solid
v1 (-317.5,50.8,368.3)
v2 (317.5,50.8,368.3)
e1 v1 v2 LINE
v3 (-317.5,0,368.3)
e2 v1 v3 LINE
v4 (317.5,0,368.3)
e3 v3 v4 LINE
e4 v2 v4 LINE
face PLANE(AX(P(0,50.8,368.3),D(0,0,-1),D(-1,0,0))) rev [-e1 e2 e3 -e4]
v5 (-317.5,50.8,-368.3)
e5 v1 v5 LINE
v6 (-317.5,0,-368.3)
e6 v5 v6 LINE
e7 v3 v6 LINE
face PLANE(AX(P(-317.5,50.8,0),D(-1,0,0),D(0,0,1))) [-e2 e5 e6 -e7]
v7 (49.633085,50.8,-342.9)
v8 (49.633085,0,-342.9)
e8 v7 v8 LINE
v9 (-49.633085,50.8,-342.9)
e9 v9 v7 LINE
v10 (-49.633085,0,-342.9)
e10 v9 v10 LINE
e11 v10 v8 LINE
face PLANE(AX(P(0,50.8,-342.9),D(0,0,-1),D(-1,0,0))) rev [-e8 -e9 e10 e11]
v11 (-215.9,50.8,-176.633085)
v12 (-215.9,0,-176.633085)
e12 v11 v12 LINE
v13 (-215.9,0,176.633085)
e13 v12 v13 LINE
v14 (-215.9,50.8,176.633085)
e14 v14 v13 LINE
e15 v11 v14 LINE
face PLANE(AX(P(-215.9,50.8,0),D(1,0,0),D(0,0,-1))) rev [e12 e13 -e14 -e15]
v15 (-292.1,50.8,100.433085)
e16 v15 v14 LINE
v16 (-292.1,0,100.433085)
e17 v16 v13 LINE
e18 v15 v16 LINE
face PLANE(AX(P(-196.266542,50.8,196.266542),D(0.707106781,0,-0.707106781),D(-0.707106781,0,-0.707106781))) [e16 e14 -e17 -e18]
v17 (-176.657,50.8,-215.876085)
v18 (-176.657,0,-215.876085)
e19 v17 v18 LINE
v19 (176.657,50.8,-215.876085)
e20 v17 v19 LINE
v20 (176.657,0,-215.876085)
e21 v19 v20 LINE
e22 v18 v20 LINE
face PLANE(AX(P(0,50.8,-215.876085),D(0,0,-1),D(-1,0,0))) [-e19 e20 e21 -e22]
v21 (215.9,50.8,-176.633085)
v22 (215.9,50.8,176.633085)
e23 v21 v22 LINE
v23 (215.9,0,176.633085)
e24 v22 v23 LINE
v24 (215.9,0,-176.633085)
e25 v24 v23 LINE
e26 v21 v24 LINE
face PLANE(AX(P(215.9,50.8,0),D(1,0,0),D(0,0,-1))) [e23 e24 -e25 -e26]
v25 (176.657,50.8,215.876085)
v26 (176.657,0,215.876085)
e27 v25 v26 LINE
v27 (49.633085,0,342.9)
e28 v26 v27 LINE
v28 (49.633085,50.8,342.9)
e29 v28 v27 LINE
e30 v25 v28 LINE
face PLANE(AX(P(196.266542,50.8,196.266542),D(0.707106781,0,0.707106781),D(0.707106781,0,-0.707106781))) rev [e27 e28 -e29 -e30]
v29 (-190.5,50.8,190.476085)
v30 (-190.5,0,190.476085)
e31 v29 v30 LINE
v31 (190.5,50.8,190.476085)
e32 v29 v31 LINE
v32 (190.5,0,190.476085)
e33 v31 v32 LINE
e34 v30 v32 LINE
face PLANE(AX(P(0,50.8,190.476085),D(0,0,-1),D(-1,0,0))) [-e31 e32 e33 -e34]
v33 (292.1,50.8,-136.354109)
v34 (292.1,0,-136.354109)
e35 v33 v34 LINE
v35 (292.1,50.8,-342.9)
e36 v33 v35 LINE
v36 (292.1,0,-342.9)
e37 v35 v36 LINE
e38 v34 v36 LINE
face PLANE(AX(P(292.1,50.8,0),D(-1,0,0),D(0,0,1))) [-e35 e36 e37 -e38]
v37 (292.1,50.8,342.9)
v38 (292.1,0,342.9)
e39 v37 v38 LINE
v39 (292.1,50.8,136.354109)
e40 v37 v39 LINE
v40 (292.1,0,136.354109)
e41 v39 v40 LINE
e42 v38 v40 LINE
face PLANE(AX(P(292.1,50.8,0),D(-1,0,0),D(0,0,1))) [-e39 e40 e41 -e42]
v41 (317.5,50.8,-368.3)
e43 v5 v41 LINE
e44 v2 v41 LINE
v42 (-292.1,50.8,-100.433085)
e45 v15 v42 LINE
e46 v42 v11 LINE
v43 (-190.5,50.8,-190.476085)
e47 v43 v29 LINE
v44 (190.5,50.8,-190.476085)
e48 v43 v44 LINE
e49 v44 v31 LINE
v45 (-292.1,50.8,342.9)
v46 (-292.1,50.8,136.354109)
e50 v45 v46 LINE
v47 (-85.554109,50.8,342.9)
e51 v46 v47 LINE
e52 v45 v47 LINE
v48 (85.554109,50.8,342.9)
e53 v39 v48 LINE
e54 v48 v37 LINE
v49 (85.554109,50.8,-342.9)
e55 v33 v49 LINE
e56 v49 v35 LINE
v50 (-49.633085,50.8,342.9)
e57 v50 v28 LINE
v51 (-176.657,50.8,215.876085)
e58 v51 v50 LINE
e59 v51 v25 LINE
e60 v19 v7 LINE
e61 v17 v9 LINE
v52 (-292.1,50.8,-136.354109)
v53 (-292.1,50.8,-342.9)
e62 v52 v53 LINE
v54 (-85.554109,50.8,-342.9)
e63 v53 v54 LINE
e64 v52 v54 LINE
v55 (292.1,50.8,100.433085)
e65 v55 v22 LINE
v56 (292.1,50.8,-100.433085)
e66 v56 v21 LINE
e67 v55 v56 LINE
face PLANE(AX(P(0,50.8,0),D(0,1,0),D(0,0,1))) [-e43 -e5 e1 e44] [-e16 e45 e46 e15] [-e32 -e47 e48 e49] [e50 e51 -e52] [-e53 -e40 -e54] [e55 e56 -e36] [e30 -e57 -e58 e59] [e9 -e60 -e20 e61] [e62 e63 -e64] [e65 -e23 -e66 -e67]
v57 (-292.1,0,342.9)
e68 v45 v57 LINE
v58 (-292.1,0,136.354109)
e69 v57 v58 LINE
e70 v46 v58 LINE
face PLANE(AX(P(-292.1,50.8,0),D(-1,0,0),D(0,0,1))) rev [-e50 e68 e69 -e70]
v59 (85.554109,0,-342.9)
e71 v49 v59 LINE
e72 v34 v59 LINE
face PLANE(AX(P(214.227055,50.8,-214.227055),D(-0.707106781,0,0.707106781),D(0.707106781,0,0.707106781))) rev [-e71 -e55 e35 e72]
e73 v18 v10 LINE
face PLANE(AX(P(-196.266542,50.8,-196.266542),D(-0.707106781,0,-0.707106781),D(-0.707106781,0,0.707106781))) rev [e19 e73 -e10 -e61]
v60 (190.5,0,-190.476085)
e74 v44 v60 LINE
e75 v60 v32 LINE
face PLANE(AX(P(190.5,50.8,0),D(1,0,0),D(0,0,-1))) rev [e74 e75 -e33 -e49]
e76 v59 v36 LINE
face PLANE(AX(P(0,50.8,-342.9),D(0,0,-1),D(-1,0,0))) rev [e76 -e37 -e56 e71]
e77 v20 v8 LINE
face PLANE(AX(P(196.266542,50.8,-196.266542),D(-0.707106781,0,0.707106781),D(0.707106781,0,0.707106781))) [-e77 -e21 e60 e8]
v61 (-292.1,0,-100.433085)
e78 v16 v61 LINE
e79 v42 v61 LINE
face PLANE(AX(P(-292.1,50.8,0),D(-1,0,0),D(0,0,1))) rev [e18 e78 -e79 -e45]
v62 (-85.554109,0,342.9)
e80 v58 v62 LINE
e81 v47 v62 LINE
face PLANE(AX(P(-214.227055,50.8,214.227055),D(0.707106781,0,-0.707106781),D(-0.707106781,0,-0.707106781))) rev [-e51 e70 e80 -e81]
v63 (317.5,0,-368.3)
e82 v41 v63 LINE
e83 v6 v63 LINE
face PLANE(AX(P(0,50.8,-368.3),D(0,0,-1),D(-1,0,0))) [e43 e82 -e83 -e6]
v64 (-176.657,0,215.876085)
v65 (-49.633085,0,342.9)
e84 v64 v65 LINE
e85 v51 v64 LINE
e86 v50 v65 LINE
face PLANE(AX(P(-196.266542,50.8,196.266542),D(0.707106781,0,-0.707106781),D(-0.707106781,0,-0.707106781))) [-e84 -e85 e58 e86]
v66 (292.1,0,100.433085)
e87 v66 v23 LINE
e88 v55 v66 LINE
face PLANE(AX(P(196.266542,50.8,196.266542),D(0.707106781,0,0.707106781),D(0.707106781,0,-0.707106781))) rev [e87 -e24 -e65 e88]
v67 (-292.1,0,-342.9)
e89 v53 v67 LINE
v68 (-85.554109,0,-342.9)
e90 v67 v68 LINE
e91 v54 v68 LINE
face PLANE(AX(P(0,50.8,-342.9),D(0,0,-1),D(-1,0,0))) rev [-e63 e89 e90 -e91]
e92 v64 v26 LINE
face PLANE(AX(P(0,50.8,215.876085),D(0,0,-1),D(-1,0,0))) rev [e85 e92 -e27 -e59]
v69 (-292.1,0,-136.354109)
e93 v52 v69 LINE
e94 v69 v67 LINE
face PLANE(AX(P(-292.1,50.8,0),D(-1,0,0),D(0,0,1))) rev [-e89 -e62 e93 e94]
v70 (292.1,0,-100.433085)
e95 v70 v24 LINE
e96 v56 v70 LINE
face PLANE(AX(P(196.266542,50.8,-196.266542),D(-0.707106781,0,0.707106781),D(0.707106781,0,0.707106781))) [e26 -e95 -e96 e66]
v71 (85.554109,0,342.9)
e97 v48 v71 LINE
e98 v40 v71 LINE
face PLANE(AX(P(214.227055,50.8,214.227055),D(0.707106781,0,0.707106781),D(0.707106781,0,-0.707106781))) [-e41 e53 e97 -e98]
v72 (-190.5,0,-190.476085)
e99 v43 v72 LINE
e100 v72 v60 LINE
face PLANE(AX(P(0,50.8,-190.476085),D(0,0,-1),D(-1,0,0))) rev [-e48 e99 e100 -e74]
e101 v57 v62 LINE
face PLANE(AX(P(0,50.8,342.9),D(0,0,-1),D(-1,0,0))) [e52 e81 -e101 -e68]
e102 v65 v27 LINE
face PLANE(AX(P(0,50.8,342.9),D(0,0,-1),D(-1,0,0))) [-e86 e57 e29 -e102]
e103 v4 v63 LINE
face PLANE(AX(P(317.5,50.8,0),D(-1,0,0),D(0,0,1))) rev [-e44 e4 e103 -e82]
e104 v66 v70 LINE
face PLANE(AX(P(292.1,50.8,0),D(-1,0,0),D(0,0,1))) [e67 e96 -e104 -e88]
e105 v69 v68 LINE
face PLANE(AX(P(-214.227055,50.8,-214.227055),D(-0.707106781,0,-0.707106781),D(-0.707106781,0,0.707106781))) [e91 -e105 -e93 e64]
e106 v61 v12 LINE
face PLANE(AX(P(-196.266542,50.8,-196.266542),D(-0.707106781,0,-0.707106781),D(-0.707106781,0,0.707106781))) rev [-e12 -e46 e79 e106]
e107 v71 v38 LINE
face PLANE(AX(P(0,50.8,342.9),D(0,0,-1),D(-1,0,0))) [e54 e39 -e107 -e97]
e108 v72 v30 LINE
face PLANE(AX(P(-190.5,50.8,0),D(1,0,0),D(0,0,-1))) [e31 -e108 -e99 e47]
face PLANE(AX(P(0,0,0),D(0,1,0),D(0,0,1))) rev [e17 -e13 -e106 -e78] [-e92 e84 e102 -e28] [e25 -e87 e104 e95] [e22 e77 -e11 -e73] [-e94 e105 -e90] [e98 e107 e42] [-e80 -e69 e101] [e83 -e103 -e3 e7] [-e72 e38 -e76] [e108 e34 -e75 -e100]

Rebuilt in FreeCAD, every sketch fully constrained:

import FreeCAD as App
import Part
import Sketcher
Q = App.Units.Quantity

doc = App.newDocument("Part")
body = doc.addObject("PartDesign::Body", "Body")

# Sketch on XZ plane
sketch1 = doc.addObject("Sketcher::SketchObject", "Sketch")
body.addObject(sketch1)
sketch1.AttachmentSupport = (doc.XZ_Plane, [""])
sketch1.MapMode = "FlatFace"
sketch1.addGeometry(Part.LineSegment(App.Vector(-318, -368, 0), App.Vector(-318, 368, 0)), False)
sketch1.addGeometry(Part.LineSegment(App.Vector(-318, 368, 0), App.Vector(318, 368, 0)), False)
sketch1.addGeometry(Part.LineSegment(App.Vector(318, 368, 0), App.Vector(318, -368, 0)), False)
sketch1.addGeometry(Part.LineSegment(App.Vector(318, -368, 0), App.Vector(-318, -368, 0)), False)
sketch1.addGeometry(Part.LineSegment(App.Vector(-86, 343, 0), App.Vector(-292, 343, 0)), False)
sketch1.addGeometry(Part.LineSegment(App.Vector(-292, 343, 0), App.Vector(-292, 136, 0)), False)
sketch1.addGeometry(Part.LineSegment(App.Vector(-292, 136, 0), App.Vector(-86, 343, 0)), False)
sketch1.addGeometry(Part.LineSegment(App.Vector(50, 343, 0), App.Vector(-50, 343, 0)), False)
sketch1.addGeometry(Part.LineSegment(App.Vector(-50, 343, 0), App.Vector(-177, 216, 0)), False)
sketch1.addGeometry(Part.LineSegment(App.Vector(-177, 216, 0), App.Vector(177, 216, 0)), False)
sketch1.addGeometry(Part.LineSegment(App.Vector(177, 216, 0), App.Vector(50, 343, 0)), False)
sketch1.addGeometry(Part.LineSegment(App.Vector(292, 343, 0), App.Vector(86, 343, 0)), False)
sketch1.addGeometry(Part.LineSegment(App.Vector(86, 343, 0), App.Vector(292, 136, 0)), False)
sketch1.addGeometry(Part.LineSegment(App.Vector(292, 136, 0), App.Vector(292, 343, 0)), False)
sketch1.addGeometry(Part.LineSegment(App.Vector(292, -100, 0), App.Vector(292, 100, 0)), False)
sketch1.addGeometry(Part.LineSegment(App.Vector(292, 100, 0), App.Vector(216, 177, 0)), False)
sketch1.addGeometry(Part.LineSegment(App.Vector(216, 177, 0), App.Vector(216, -177, 0)), False)
sketch1.addGeometry(Part.LineSegment(App.Vector(216, -177, 0), App.Vector(292, -100, 0)), False)
sketch1.addGeometry(Part.LineSegment(App.Vector(292, -343, 0), App.Vector(292, -136, 0)), False)
sketch1.addGeometry(Part.LineSegment(App.Vector(292, -136, 0), App.Vector(86, -343, 0)), False)
sketch1.addGeometry(Part.LineSegment(App.Vector(86, -343, 0), App.Vector(292, -343, 0)), False)
sketch1.addGeometry(Part.LineSegment(App.Vector(-292, -343, 0), App.Vector(-86, -343, 0)), False)
sketch1.addGeometry(Part.LineSegment(App.Vector(-86, -343, 0), App.Vector(-292, -136, 0)), False)
sketch1.addGeometry(Part.LineSegment(App.Vector(-292, -136, 0), App.Vector(-292, -343, 0)), False)
sketch1.addGeometry(Part.LineSegment(App.Vector(-50, -343, 0), App.Vector(50, -343, 0)), False)
sketch1.addGeometry(Part.LineSegment(App.Vector(50, -343, 0), App.Vector(177, -216, 0)), False)
sketch1.addGeometry(Part.LineSegment(App.Vector(177, -216, 0), App.Vector(-177, -216, 0)), False)
sketch1.addGeometry(Part.LineSegment(App.Vector(-177, -216, 0), App.Vector(-50, -343, 0)), False)
sketch1.addGeometry(Part.LineSegment(App.Vector(-292, 100, 0), App.Vector(-292, -100, 0)), False)
sketch1.addGeometry(Part.LineSegment(App.Vector(-292, -100, 0), App.Vector(-216, -177, 0)), False)
sketch1.addGeometry(Part.LineSegment(App.Vector(-216, -177, 0), App.Vector(-216, 177, 0)), False)
sketch1.addGeometry(Part.LineSegment(App.Vector(-216, 177, 0), App.Vector(-292, 100, 0)), False)
sketch1.addGeometry(Part.LineSegment(App.Vector(-190, 190, 0), App.Vector(-190, -190, 0)), False)
sketch1.addGeometry(Part.LineSegment(App.Vector(-190, -190, 0), App.Vector(190, -190, 0)), False)
sketch1.addGeometry(Part.LineSegment(App.Vector(190, -190, 0), App.Vector(190, 190, 0)), False)
sketch1.addGeometry(Part.LineSegment(App.Vector(190, 190, 0), App.Vector(-190, 190, 0)), False)
sketch1.addConstraint(Sketcher.Constraint("Coincident", 0, 2, 1, 1))
sketch1.addConstraint(Sketcher.Constraint("Coincident", 1, 2, 2, 1))
sketch1.addConstraint(Sketcher.Constraint("Coincident", 2, 2, 3, 1))
sketch1.addConstraint(Sketcher.Constraint("Coincident", 3, 2, 0, 1))
sketch1.addConstraint(Sketcher.Constraint("Coincident", 4, 2, 5, 1))
sketch1.addConstraint(Sketcher.Constraint("Coincident", 5, 2, 6, 1))
sketch1.addConstraint(Sketcher.Constraint("Coincident", 6, 2, 4, 1))
sketch1.addConstraint(Sketcher.Constraint("Coincident", 7, 2, 8, 1))
sketch1.addConstraint(Sketcher.Constraint("Coincident", 8, 2, 9, 1))
sketch1.addConstraint(Sketcher.Constraint("Coincident", 9, 2, 10, 1))
sketch1.addConstraint(Sketcher.Constraint("Coincident", 10, 2, 7, 1))
sketch1.addConstraint(Sketcher.Constraint("Coincident", 11, 2, 12, 1))
sketch1.addConstraint(Sketcher.Constraint("Coincident", 12, 2, 13, 1))
sketch1.addConstraint(Sketcher.Constraint("Coincident", 13, 2, 11, 1))
sketch1.addConstraint(Sketcher.Constraint("Coincident", 14, 2, 15, 1))
sketch1.addConstraint(Sketcher.Constraint("Coincident", 15, 2, 16, 1))
sketch1.addConstraint(Sketcher.Constraint("Coincident", 16, 2, 17, 1))
sketch1.addConstraint(Sketcher.Constraint("Coincident", 17, 2, 14, 1))
sketch1.addConstraint(Sketcher.Constraint("Coincident", 18, 2, 19, 1))
sketch1.addConstraint(Sketcher.Constraint("Coincident", 19, 2, 20, 1))
sketch1.addConstraint(Sketcher.Constraint("Coincident", 20, 2, 18, 1))
sketch1.addConstraint(Sketcher.Constraint("Coincident", 21, 2, 22, 1))
sketch1.addConstraint(Sketcher.Constraint("Coincident", 22, 2, 23, 1))
sketch1.addConstraint(Sketcher.Constraint("Coincident", 23, 2, 21, 1))
sketch1.addConstraint(Sketcher.Constraint("Coincident", 24, 2, 25, 1))
sketch1.addConstraint(Sketcher.Constraint("Coincident", 25, 2, 26, 1))
sketch1.addConstraint(Sketcher.Constraint("Coincident", 26, 2, 27, 1))
sketch1.addConstraint(Sketcher.Constraint("Coincident", 27, 2, 24, 1))
sketch1.addConstraint(Sketcher.Constraint("Coincident", 28, 2, 29, 1))
sketch1.addConstraint(Sketcher.Constraint("Coincident", 29, 2, 30, 1))
sketch1.addConstraint(Sketcher.Constraint("Coincident", 30, 2, 31, 1))
sketch1.addConstraint(Sketcher.Constraint("Coincident", 31, 2, 28, 1))
sketch1.addConstraint(Sketcher.Constraint("Coincident", 32, 2, 33, 1))
sketch1.addConstraint(Sketcher.Constraint("Coincident", 33, 2, 34, 1))
sketch1.addConstraint(Sketcher.Constraint("Coincident", 34, 2, 35, 1))
sketch1.addConstraint(Sketcher.Constraint("Coincident", 35, 2, 32, 1))
sketch1.addConstraint(Sketcher.Constraint("Vertical", 0))
sketch1.addConstraint(Sketcher.Constraint("Horizontal", 1))
sketch1.addConstraint(Sketcher.Constraint("Vertical", 2))
sketch1.addConstraint(Sketcher.Constraint("Horizontal", 3))
sketch1.addConstraint(Sketcher.Constraint("Horizontal", 4))
sketch1.addConstraint(Sketcher.Constraint("Vertical", 5))
sketch1.addConstraint(Sketcher.Constraint("Horizontal", 7))
sketch1.addConstraint(Sketcher.Constraint("Horizontal", 9))
sketch1.addConstraint(Sketcher.Constraint("Horizontal", 11))
sketch1.addConstraint(Sketcher.Constraint("Vertical", 13))
sketch1.addConstraint(Sketcher.Constraint("Vertical", 14))
sketch1.addConstraint(Sketcher.Constraint("Vertical", 16))
sketch1.addConstraint(Sketcher.Constraint("Vertical", 18))
sketch1.addConstraint(Sketcher.Constraint("Horizontal", 20))
sketch1.addConstraint(Sketcher.Constraint("Horizontal", 21))
sketch1.addConstraint(Sketcher.Constraint("Vertical", 23))
sketch1.addConstraint(Sketcher.Constraint("Horizontal", 24))
sketch1.addConstraint(Sketcher.Constraint("Horizontal", 26))
sketch1.addConstraint(Sketcher.Constraint("Vertical", 28))
sketch1.addConstraint(Sketcher.Constraint("Vertical", 30))
sketch1.addConstraint(Sketcher.Constraint("Vertical", 32))
sketch1.addConstraint(Sketcher.Constraint("Horizontal", 33))
sketch1.addConstraint(Sketcher.Constraint("Vertical", 34))
sketch1.addConstraint(Sketcher.Constraint("Horizontal", 35))
sketch1.addConstraint(Sketcher.Constraint("Symmetric", 0, 2, 2, 2, -1, 1))
sketch1.addConstraint(Sketcher.Constraint("Symmetric", 5, 2, 18, 2, -1, 1))
sketch1.addConstraint(Sketcher.Constraint("Symmetric", 6, 2, 19, 2, -1, 1))
sketch1.addConstraint(Sketcher.Constraint("Symmetric", 11, 2, 21, 2, -1, 1))
sketch1.addConstraint(Sketcher.Constraint("Symmetric", 12, 2, 22, 2, -1, 1))
sketch1.addConstraint(Sketcher.Constraint("Symmetric", 7, 2, 24, 2, -1, 1))
sketch1.addConstraint(Sketcher.Constraint("Symmetric", 8, 2, 25, 2, -1, 1))
sketch1.addConstraint(Sketcher.Constraint("Symmetric", 14, 2, 28, 2, -1, 1))
sketch1.addConstraint(Sketcher.Constraint("Symmetric", 15, 2, 29, 2, -1, 1))
sketch1.addConstraint(Sketcher.Constraint("Symmetric", 32, 2, 34, 2, -1, 1))
sketch1.addConstraint(Sketcher.Constraint("Symmetric", 6, 2, 11, 2, -2))
sketch1.addConstraint(Sketcher.Constraint("Symmetric", 5, 2, 12, 2, -2))
sketch1.addConstraint(Sketcher.Constraint("Parallel", 6, 8))
sketch1.addConstraint(Sketcher.Constraint("Perpendicular", 8, 10))
sketch1.addConstraint(Sketcher.Constraint("Parallel", 10, 12))
sketch1.addConstraint(Sketcher.Constraint("Parallel", 12, 15))
sketch1.addConstraint(Sketcher.Constraint("Perpendicular", 15, 17))
sketch1.addConstraint(Sketcher.Constraint("Perpendicular", 25, 27))
sketch1.addConstraint(Sketcher.Constraint("Perpendicular", 29, 31))
sketch1.addConstraint(Sketcher.Constraint("Horizontal", 6, 2, 7, 2))
sketch1.addConstraint(Sketcher.Constraint("Horizontal", 17, 2, 28, 2))
sketch1.addConstraint(Sketcher.Constraint("Horizontal", 15, 2, 30, 2))
sketch1.addConstraint(Sketcher.Constraint("Vertical", 13, 2, 14, 2))
sketch1.addConstraint(Sketcher.Constraint("Vertical", 10, 2, 24, 2))
sketch1.addConstraint(Sketcher.Constraint("Vertical", 8, 2, 26, 2))
sketch1.addConstraint(Sketcher.Constraint("DistanceX", 1, 1, 1, 2, Q("25 in")))
sketch1.addConstraint(Sketcher.Constraint("DistanceX", 33, 1, 33, 2, Q("15 in")))
sketch1.addConstraint(Sketcher.Constraint("DistanceY", 0, 1, 0, 2, Q("29 in")))
sketch1.addConstraint(Sketcher.Constraint("DistanceX", 0, 2, 4, 2, Q("1 in")))
sketch1.addConstraint(Sketcher.Constraint("DistanceY", 4, 2, 0, 2, Q("1 in")))
sketch1.addConstraint(Sketcher.Constraint("DistanceX", 15, 2, 12, 2, Q("3 in")))
sketch1.addConstraint(Sketcher.Constraint("DistanceY", 26, 2, 32, 2, Q("1 in")))
sketch1.addConstraint(Sketcher.Constraint("Distance", 6, Q("11.5 in")))
sketch1.addConstraint(Sketcher.Constraint("DistanceX", 9, 1, 9, 2, Q("13.91 in")))
sketch1.addConstraint(Sketcher.Constraint("DistanceY", 14, 2, 9, 2, Q("4.545 in")))
sketch1.addConstraint(Sketcher.Constraint("DistanceX", 7, 2, 7, 1, 99.266169))
pad1 = doc.addObject("PartDesign::Pad", "Pad")
body.addObject(pad1)
pad1.Profile = sketch1
pad1.Length = Q("2 in")
pad1.Reversed = True

doc.recompute()
